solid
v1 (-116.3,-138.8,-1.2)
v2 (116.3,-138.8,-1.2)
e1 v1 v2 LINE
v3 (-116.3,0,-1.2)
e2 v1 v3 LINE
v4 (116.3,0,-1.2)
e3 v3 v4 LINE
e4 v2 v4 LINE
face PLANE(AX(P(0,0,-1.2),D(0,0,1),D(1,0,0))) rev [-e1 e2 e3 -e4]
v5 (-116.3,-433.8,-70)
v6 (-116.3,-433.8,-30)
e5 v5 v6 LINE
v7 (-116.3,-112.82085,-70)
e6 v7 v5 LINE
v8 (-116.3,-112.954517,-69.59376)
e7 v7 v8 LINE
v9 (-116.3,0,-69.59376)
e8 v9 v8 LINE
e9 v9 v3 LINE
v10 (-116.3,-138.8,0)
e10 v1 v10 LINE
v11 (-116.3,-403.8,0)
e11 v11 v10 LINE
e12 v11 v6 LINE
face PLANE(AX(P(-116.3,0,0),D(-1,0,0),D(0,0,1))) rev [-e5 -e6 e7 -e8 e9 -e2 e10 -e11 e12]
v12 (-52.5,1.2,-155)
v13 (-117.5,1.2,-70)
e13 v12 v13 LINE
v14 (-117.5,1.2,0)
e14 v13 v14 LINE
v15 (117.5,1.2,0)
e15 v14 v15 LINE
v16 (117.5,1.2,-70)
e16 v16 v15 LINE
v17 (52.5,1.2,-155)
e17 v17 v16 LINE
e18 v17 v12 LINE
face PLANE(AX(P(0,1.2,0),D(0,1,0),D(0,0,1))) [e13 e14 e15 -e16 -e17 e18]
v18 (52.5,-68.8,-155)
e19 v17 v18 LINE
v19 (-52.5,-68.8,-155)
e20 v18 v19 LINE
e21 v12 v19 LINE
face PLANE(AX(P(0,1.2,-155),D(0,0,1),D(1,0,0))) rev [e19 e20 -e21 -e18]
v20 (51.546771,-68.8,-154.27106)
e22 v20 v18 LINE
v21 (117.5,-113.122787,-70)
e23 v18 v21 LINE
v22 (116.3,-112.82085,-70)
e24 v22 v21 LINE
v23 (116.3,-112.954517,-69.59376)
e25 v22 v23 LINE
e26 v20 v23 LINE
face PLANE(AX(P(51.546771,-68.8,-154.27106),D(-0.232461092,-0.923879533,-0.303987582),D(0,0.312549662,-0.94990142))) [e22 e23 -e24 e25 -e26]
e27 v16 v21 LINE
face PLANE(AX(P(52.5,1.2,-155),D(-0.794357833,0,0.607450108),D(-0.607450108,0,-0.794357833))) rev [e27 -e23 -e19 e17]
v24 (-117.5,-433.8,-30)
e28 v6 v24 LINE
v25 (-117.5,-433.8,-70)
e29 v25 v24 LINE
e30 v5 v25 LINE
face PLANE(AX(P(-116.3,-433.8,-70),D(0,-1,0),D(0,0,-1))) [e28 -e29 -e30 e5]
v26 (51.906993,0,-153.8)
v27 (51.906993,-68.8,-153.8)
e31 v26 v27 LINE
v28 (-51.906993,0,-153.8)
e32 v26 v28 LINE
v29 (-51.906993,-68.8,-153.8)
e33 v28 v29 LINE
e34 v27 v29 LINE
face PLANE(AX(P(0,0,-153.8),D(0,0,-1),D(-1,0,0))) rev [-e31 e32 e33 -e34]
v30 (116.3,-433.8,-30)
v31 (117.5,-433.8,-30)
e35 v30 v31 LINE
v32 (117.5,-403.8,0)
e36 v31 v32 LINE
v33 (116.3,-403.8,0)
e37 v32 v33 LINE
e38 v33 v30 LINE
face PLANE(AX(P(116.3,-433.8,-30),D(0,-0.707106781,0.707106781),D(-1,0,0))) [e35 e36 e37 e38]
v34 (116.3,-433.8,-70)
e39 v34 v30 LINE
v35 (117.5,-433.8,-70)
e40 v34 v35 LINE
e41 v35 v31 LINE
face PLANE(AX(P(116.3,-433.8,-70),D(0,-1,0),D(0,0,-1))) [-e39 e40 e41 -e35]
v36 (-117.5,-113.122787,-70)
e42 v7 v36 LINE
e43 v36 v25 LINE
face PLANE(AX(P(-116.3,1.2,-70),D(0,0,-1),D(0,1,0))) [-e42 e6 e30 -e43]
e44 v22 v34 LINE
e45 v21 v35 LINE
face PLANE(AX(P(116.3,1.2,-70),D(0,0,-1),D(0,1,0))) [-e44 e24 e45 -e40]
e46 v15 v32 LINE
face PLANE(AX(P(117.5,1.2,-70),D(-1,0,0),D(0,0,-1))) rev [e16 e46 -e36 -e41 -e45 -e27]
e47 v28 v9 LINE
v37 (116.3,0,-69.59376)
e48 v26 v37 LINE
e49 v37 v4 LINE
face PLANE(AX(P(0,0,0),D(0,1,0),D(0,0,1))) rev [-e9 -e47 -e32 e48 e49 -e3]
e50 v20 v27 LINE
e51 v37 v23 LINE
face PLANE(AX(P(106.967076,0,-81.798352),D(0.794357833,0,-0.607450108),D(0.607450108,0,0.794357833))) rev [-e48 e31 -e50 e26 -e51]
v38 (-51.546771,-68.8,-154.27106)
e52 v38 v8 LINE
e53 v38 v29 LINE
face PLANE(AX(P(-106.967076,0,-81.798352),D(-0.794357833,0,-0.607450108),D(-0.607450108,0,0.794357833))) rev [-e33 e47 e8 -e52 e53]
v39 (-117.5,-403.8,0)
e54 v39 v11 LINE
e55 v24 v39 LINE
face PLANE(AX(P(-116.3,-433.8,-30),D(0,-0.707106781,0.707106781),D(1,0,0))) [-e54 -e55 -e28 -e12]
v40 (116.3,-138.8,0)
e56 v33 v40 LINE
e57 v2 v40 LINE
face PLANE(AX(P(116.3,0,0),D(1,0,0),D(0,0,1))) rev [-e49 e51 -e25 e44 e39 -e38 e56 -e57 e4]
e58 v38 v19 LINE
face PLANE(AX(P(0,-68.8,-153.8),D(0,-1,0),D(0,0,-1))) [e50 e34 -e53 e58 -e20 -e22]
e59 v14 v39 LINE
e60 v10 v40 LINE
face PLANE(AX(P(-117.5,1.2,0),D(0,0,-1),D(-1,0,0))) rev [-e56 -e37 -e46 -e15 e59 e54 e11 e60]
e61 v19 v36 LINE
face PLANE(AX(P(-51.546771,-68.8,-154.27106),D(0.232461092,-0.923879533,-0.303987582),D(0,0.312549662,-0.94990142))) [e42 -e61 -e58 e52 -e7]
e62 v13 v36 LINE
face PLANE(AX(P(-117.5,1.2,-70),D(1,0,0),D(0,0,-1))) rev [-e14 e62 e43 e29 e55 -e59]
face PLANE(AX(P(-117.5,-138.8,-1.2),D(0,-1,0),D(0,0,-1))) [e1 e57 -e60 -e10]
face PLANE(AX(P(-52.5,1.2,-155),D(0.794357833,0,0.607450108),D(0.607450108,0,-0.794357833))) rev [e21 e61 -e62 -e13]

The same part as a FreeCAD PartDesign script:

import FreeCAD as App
import Part
import Sketcher
from FreeCAD import Vector
Q = App.Units.Quantity


def edges_at(feature, points):
    """Names of the edges that pass closest to the given points."""
    edges = feature.Shape.Edges
    near = lambda p: min(range(len(edges)), key=lambda i: edges[i].distToShape(Part.Vertex(*p))[0])
    return sorted({f"Edge{near(p) + 1}" for p in points})

doc = App.newDocument("Part")
body = doc.addObject("PartDesign::Body", "Body")

# Sketch on XZ plane
sketch1 = doc.addObject("Sketcher::SketchObject", "Sketch")
body.addObject(sketch1)
sketch1.AttachmentSupport = (doc.XZ_Plane, [""])
sketch1.MapMode = "FlatFace"
sketch1.addGeometry([
    Part.LineSegment(Vector(0, 0, 0), Vector(0, -155, 0)),  # 0
    Part.LineSegment(Vector(0, -155, 0), Vector(-52.5, -155, 0)),  # 1
    Part.LineSegment(Vector(-52.5, -155, 0), Vector(-117.5, -70, 0)),  # 2
    Part.LineSegment(Vector(-117.5, -70, 0), Vector(-117.5, 0, 0)),  # 3
    Part.LineSegment(Vector(-117.5, 0, 0), Vector(0, 0, 0)),  # 4
], False)
sketch1.addConstraint([
    Sketcher.Constraint("Coincident", 0, 2, 1, 1),
    Sketcher.Constraint("Coincident", 1, 2, 2, 1),
    Sketcher.Constraint("Coincident", 2, 2, 3, 1),
    Sketcher.Constraint("Coincident", 3, 2, 4, 1),
    Sketcher.Constraint("Coincident", 4, 2, 0, 1),
    Sketcher.Constraint("Vertical", 0),
    Sketcher.Constraint("Horizontal", 1),
    Sketcher.Constraint("Vertical", 3),
    Sketcher.Constraint("Horizontal", 4),
    Sketcher.Constraint("Coincident", 4, 2, -1, 1),
    Sketcher.Constraint("DistanceY", 0, 2, 0, 1, 155.0),
    Sketcher.Constraint("DistanceY", 3, 1, 3, 2, 70.0),
    Sketcher.Constraint("DistanceX", 1, 2, 1, 1, 52.5),
    Sketcher.Constraint("DistanceX", 4, 1, 4, 2, 117.5),
])
pad1 = doc.addObject("PartDesign::Pad", "Pad")
body.addObject(pad1)
pad1.Profile = sketch1
pad1.Length = 1.2
pad1.Reversed = True

# Sketch on YZ plane
sketch2 = doc.addObject("Sketcher::SketchObject", "Sketch001")
body.addObject(sketch2)
sketch2.AttachmentSupport = (doc.YZ_Plane, [""])
sketch2.MapMode = "FlatFace"
sketch2.AttachmentOffset = App.Placement(Vector(0, 0, -117.5), App.Rotation())
sketch2.addGeometry([
    Part.LineSegment(Vector(1.2, -70, 0), Vector(-433.8, -70, 0)),
    Part.LineSegment(Vector(-433.8, -70, 0), Vector(-433.8, 0, 0)),
    Part.LineSegment(Vector(-433.8, 0, 0), Vector(1.2, 0, 0)),
    Part.LineSegment(Vector(1.2, 0, 0), Vector(1.2, -70, 0)),
], False)
sketch2.addConstraint([
    Sketcher.Constraint("Coincident", 0, 2, 1, 1),
    Sketcher.Constraint("Coincident", 1, 2, 2, 1),
    Sketcher.Constraint("Coincident", 2, 2, 3, 1),
    Sketcher.Constraint("Coincident", 3, 2, 0, 1),
    Sketcher.Constraint("Horizontal", 0),
    Sketcher.Constraint("Vertical", 1),
    Sketcher.Constraint("Horizontal", 2),
    Sketcher.Constraint("Vertical", 3),
    Sketcher.Constraint("PointOnObject", 1, 2, -1),
    Sketcher.Constraint("DistanceX", 0, 2, 0, 1, 435.0),
    Sketcher.Constraint("DistanceY", 1, 1, 1, 2, 70.0),
    Sketcher.Constraint("DistanceX", 0, 2, -1, 1, 433.8),
])
pad2 = doc.addObject("PartDesign::Pad", "Pad001")
body.addObject(pad2)
pad2.Profile = sketch2
pad2.Length = 1.2

# Sketch on an angled plane
sketch3 = doc.addObject("Sketcher::SketchObject", "Sketch002")
body.addObject(sketch3)
sketch3.Placement = App.Placement(Vector(-107.920306, 0, -82.527293), App.Rotation(Vector(-0.607450108, 0, 0.794357833), Vector(0, 1.000000001, 0), Vector(-0.794357833, 0, -0.607450108), "ZXY"))
sketch3.addGeometry([
    Part.LineSegment(Vector(15.770339, 1.2, 0), Vector(-91.234334, 1.2, 0)),
    Part.LineSegment(Vector(-91.234334, 1.2, 0), Vector(-91.234334, -68.8, 0)),
    Part.LineSegment(Vector(-91.234334, -68.8, 0), Vector(15.770339, -113.122787, 0)),
    Part.LineSegment(Vector(15.770339, -113.122787, 0), Vector(15.770339, 1.2, 0)),
], False)
sketch3.addConstraint([
    Sketcher.Constraint("Coincident", 0, 2, 1, 1),
    Sketcher.Constraint("Coincident", 1, 2, 2, 1),
    Sketcher.Constraint("Coincident", 2, 2, 3, 1),
    Sketcher.Constraint("Coincident", 3, 2, 0, 1),
    Sketcher.Constraint("Horizontal", 0),
    Sketcher.Constraint("Vertical", 1),
    Sketcher.Constraint("Vertical", 3),
    Sketcher.Constraint("DistanceY", 1, 2, 1, 1, 70.0),
    Sketcher.Constraint("Angle", 2, Q("-22.5 deg")),
    Sketcher.Constraint("DistanceY", -1, 1, 0, 2, 1.2),
    Sketcher.Constraint("DistanceX", 0, 2, 0, 1, 107.004673),
    Sketcher.Constraint("DistanceX", -1, 1, 2, 2, 15.770339),
])
pad3 = doc.addObject("PartDesign::Pad", "Pad002")
body.addObject(pad3)
pad3.Profile = sketch3
pad3.Length = 1.2
pad3.Reversed = True

# Sketch on XY plane
sketch4 = doc.addObject("Sketcher::SketchObject", "Sketch003")
body.addObject(sketch4)
sketch4.AttachmentSupport = (doc.XY_Plane, [""])
sketch4.MapMode = "FlatFace"
sketch4.AttachmentOffset = App.Placement(Vector(0, 0, -155), App.Rotation())
sketch4.addGeometry([
    Part.LineSegment(Vector(0, 1.2, 0), Vector(0, -68.8, 0)),
    Part.LineSegment(Vector(0, -68.8, 0), Vector(-52.5, -68.8, 0)),
    Part.LineSegment(Vector(-52.5, -68.8, 0), Vector(-52.5, 1.2, 0)),
    Part.LineSegment(Vector(-52.5, 1.2, 0), Vector(0, 1.2, 0)),
], False)
sketch4.addConstraint([
    Sketcher.Constraint("Coincident", 0, 2, 1, 1),
    Sketcher.Constraint("Coincident", 1, 2, 2, 1),
    Sketcher.Constraint("Coincident", 2, 2, 3, 1),
    Sketcher.Constraint("Coincident", 3, 2, 0, 1),
    Sketcher.Constraint("Vertical", 0),
    Sketcher.Constraint("Horizontal", 1),
    Sketcher.Constraint("Vertical", 2),
    Sketcher.Constraint("Horizontal", 3),
    Sketcher.Constraint("PointOnObject", 0, 2, -2),
    Sketcher.Constraint("DistanceY", 0, 2, 0, 1, 70.0),
    Sketcher.Constraint("DistanceX", 1, 2, 1, 1, 52.5),
    Sketcher.Constraint("DistanceY", 0, 2, -1, 1, 68.8),
])
pad4 = doc.addObject("PartDesign::Pad", "Pad003")
body.addObject(pad4)
pad4.Profile = sketch4
pad4.Length = 1.2
doc.recompute()

chamfer = doc.addObject("PartDesign::Chamfer", "Chamfer")
body.addObject(chamfer)
chamfer.Base = (pad4, edges_at(pad4, [(-116.9, -433.8, 0)]))
chamfer.Size = 30

# Sketch on XY plane
sketch5 = doc.addObject("Sketcher::SketchObject", "Sketch004")
body.addObject(sketch5)
sketch5.AttachmentSupport = (doc.XY_Plane, [""])
sketch5.MapMode = "FlatFace"
sketch5.addGeometry([
    Part.LineSegment(Vector(-117.5, 1.2, 0), Vector(-117.5, -138.8, 0)),
    Part.LineSegment(Vector(-117.5, -138.8, 0), Vector(0, -138.8, 0)),
    Part.LineSegment(Vector(0, -138.8, 0), Vector(0, 1.2, 0)),
    Part.LineSegment(Vector(0, 1.2, 0), Vector(-117.5, 1.2, 0)),
], False)
sketch5.addConstraint([
    Sketcher.Constraint("Coincident", 0, 2, 1, 1),
    Sketcher.Constraint("Coincident", 1, 2, 2, 1),
    Sketcher.Constraint("Coincident", 2, 2, 3, 1),
    Sketcher.Constraint("Coincident", 3, 2, 0, 1),
    Sketcher.Constraint("Vertical", 0),
    Sketcher.Constraint("Horizontal", 1),
    Sketcher.Constraint("Vertical", 2),
    Sketcher.Constraint("Horizontal", 3),
    Sketcher.Constraint("PointOnObject", 1, 2, -2),
    Sketcher.Constraint("DistanceY", 0, 2, 0, 1, 140.0),
    Sketcher.Constraint("DistanceX", 1, 1, 1, 2, 117.5),
    Sketcher.Constraint("DistanceY", 0, 2, -1, 1, 138.8),
])
pad5 = doc.addObject("PartDesign::Pad", "Pad004")
body.addObject(pad5)
pad5.Profile = sketch5
pad5.Length = 1.2
pad5.Reversed = True
body2 = doc.addObject("PartDesign::Body", "Body001")
doc.recompute()

body2.BaseFeature = body
doc.recompute()

mirroring = doc.addObject("Part::Mirroring", "Mirroring")
mirroring.Source = body
mirroring.Base = Vector(0, -32.836293, -62.65444)
mirroring.Normal = Vector(1, 0, 0)
body3 = doc.addObject("PartDesign::Body", "Body002")
body3.BaseFeature = mirroring
boolean = doc.addObject("PartDesign::Boolean", "Boolean")
body2.addObject(boolean)
boolean.Type = "Fuse"
boolean.addObjects([body3])
doc.recompute()
mirroring.Visibility = False

doc.recompute()
